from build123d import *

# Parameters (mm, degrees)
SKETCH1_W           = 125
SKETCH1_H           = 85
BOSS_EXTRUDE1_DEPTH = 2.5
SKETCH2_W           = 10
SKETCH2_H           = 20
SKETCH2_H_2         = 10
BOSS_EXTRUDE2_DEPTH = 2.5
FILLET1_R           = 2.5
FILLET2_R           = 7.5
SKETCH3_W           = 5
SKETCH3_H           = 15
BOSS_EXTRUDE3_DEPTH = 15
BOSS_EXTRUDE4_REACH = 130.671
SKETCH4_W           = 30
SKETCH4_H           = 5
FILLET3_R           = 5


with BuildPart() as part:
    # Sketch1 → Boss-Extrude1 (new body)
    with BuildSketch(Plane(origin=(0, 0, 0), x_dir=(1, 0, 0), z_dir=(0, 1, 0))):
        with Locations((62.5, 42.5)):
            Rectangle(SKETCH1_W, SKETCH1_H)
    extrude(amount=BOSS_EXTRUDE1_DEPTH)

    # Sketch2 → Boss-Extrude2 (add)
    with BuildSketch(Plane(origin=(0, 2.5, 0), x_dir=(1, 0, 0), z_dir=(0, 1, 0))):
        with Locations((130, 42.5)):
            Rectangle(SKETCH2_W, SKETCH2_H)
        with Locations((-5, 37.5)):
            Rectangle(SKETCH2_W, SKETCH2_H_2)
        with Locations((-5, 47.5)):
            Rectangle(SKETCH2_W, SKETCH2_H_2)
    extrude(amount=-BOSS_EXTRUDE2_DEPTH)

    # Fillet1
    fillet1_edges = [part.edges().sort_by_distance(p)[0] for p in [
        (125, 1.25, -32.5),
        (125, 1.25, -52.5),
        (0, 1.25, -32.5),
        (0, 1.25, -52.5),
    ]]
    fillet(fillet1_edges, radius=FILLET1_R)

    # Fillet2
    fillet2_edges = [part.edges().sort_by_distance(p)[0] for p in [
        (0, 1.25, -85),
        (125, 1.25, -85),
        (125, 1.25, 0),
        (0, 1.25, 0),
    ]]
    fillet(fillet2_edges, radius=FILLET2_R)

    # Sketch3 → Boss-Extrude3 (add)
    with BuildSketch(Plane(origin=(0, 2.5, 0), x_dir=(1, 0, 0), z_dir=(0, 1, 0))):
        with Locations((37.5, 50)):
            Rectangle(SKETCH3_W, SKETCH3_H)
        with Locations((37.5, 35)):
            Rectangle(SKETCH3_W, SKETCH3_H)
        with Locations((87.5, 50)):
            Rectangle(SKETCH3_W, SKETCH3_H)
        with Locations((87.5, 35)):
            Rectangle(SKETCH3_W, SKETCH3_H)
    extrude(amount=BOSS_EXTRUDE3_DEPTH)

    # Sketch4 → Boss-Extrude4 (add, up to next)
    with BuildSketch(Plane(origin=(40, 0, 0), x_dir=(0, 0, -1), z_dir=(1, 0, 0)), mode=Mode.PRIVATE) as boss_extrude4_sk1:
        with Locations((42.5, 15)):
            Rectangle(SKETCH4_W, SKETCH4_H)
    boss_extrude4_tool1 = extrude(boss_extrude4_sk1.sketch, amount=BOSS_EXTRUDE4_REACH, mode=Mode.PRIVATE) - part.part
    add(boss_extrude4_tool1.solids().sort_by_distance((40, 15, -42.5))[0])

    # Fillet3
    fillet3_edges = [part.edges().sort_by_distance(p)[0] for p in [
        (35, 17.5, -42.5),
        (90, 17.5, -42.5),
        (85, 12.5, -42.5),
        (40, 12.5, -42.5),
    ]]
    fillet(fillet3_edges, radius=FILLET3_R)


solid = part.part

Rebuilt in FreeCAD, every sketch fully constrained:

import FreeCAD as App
import Part
import Sketcher

V = App.Vector
Q = App.Units.Quantity


def edges_at(feature, points):
    """Names of the edges that pass closest to the given points."""
    edges = feature.Shape.Edges
    near = lambda p: min(range(len(edges)), key=lambda i: edges[i].distToShape(Part.Vertex(*p))[0])
    return sorted({f"Edge{near(p) + 1}" for p in points})


def add_polygon(sketch, points):
    """Adds a closed chain of lines whose ends are joined by coincident constraints."""
    first, n = sketch.GeometryCount, len(points)
    for a, b in zip(points, points[1:] + points[:1]):
        sketch.addGeometry(Part.LineSegment(App.Vector(*a, 0), App.Vector(*b, 0)), False)
    for i in range(n):
        sketch.addConstraint(Sketcher.Constraint("Coincident", first + i, 2, first + (i + 1) % n, 1))

doc = App.newDocument("Part")
body = doc.addObject("PartDesign::Body", "Body")

# Sketch on XZ plane
sketch1 = doc.addObject("Sketcher::SketchObject", "Sketch")
body.addObject(sketch1)
sketch1.AttachmentSupport = (doc.XZ_Plane, [""])
sketch1.MapMode = "FlatFace"
add_polygon(sketch1, [(0, -85), (0, 0), (125, 0), (125, -85)])  # lines 0-3
sketch1.addConstraint(Sketcher.Constraint("Vertical", 0))
sketch1.addConstraint(Sketcher.Constraint("Horizontal", 1))
sketch1.addConstraint(Sketcher.Constraint("Vertical", 2))
sketch1.addConstraint(Sketcher.Constraint("Horizontal", 3))
sketch1.addConstraint(Sketcher.Constraint("Coincident", 0, 2, -1, 1))
sketch1.addConstraint(Sketcher.Constraint("DistanceX", 1, 1, 1, 2, Q("125 mm")))
sketch1.addConstraint(Sketcher.Constraint("DistanceY", 0, 1, 0, 2, Q("85 mm")))
pad1 = doc.addObject("PartDesign::Pad", "Pad")
body.addObject(pad1)
pad1.Profile = sketch1
pad1.Length = 2.5
pad1.Reversed = True

# Sketch on XZ plane
sketch2 = doc.addObject("Sketcher::SketchObject", "Sketch001")
body.addObject(sketch2)
sketch2.AttachmentSupport = (doc.XZ_Plane, [""])
sketch2.MapMode = "FlatFace"
sketch2.AttachmentOffset = App.Placement(V(0, 0, -2.5), App.Rotation())
add_polygon(sketch2, [(125, -52), (125, -32), (135, -32), (135, -52)])  # lines 0-3
add_polygon(sketch2, [(-10, -32), (0, -32), (0, -52), (-10, -52)])  # lines 4-7
sketch2.addConstraint(Sketcher.Constraint("Vertical", 0))
sketch2.addConstraint(Sketcher.Constraint("Horizontal", 1))
sketch2.addConstraint(Sketcher.Constraint("Vertical", 2))
sketch2.addConstraint(Sketcher.Constraint("Horizontal", 3))
sketch2.addConstraint(Sketcher.Constraint("Horizontal", 4))
sketch2.addConstraint(Sketcher.Constraint("Vertical", 5))
sketch2.addConstraint(Sketcher.Constraint("Horizontal", 6))
sketch2.addConstraint(Sketcher.Constraint("Vertical", 7))
sketch2.addConstraint(Sketcher.Constraint("PointOnObject", 4, 2, -2))
sketch2.addConstraint(Sketcher.Constraint("Horizontal", 1, 2, 4, 2))
sketch2.addConstraint(Sketcher.Constraint("Horizontal", 3, 2, 5, 2))
sketch2.addConstraint(Sketcher.Constraint("Equal", 3, 4))
sketch2.addConstraint(Sketcher.Constraint("DistanceX", 1, 1, 1, 2, Q("10 mm")))
sketch2.addConstraint(Sketcher.Constraint("DistanceY", 0, 1, 0, 2, Q("20 mm")))
sketch2.addConstraint(Sketcher.Constraint("DistanceX", -1, 1, 0, 2, Q("125 mm")))
sketch2.addConstraint(Sketcher.Constraint("DistanceY", 0, 2, -1, 1, Q("32.5 mm")))
pad2 = doc.addObject("PartDesign::Pad", "Pad001")
body.addObject(pad2)
pad2.Profile = sketch2
pad2.Length = 2.5
doc.recompute()

fillet = doc.addObject("PartDesign::Fillet", "Fillet")
body.addObject(fillet)
fillet.Base = (pad2, edges_at(pad2, [
    (125, 1.25, -32.5),
    (125, 1.25, -52.5),
    (0, 1.25, -32.5),
    (0, 1.25, -52.5),
]))
fillet.Radius = 2.5
doc.recompute()

fillet2 = doc.addObject("PartDesign::Fillet", "Fillet001")
body.addObject(fillet2)
fillet2.Base = (fillet, edges_at(fillet, [
    (0, 1.25, -85),
    (125, 1.25, -85),
    (125, 1.25, 0),
    (0, 1.25, 0),
]))
fillet2.Radius = 7.5

# Sketch on XZ plane
sketch3 = doc.addObject("Sketcher::SketchObject", "Sketch002")
body.addObject(sketch3)
sketch3.AttachmentSupport = (doc.XZ_Plane, [""])
sketch3.MapMode = "FlatFace"
sketch3.AttachmentOffset = App.Placement(V(0, 0, -2.5), App.Rotation())
add_polygon(sketch3, [(35, -58), (35, -28), (40, -28), (40, -58)])  # lines 0-3
add_polygon(sketch3, [(85, -58), (85, -28), (90, -28), (90, -58)])  # lines 4-7
sketch3.addConstraint(Sketcher.Constraint("Vertical", 0))
sketch3.addConstraint(Sketcher.Constraint("Horizontal", 1))
sketch3.addConstraint(Sketcher.Constraint("Vertical", 2))
sketch3.addConstraint(Sketcher.Constraint("Horizontal", 3))
sketch3.addConstraint(Sketcher.Constraint("Vertical", 4))
sketch3.addConstraint(Sketcher.Constraint("Horizontal", 5))
sketch3.addConstraint(Sketcher.Constraint("Vertical", 6))
sketch3.addConstraint(Sketcher.Constraint("Horizontal", 7))
sketch3.addConstraint(Sketcher.Constraint("Horizontal", 1, 2, 4, 2))
sketch3.addConstraint(Sketcher.Constraint("Horizontal", 3, 2, 6, 2))
sketch3.addConstraint(Sketcher.Constraint("Equal", 3, 5))
sketch3.addConstraint(Sketcher.Constraint("DistanceX", 1, 1, 1, 2, Q("5 mm")))
sketch3.addConstraint(Sketcher.Constraint("DistanceY", 0, 1, 0, 2, Q("30 mm")))
sketch3.addConstraint(Sketcher.Constraint("DistanceX", -1, 1, 0, 2, Q("35 mm")))
sketch3.addConstraint(Sketcher.Constraint("DistanceX", -1, 1, 4, 2, Q("85 mm")))
sketch3.addConstraint(Sketcher.Constraint("DistanceY", 0, 2, -1, 1, Q("27.5 mm")))
pad3 = doc.addObject("PartDesign::Pad", "Pad002")
body.addObject(pad3)
pad3.Profile = sketch3
pad3.Length = 15
pad3.Reversed = True

# Sketch on YZ plane
sketch4 = doc.addObject("Sketcher::SketchObject", "Sketch003")
body.addObject(sketch4)
sketch4.AttachmentSupport = (doc.YZ_Plane, [""])
sketch4.MapMode = "FlatFace"
sketch4.AttachmentOffset = App.Placement(V(0, 0, 40), App.Rotation())
add_polygon(sketch4, [(18, -28), (12, -28), (12, -58), (18, -58)])  # lines 0-3
sketch4.addConstraint(Sketcher.Constraint("Horizontal", 0))
sketch4.addConstraint(Sketcher.Constraint("Vertical", 1))
sketch4.addConstraint(Sketcher.Constraint("Horizontal", 2))
sketch4.addConstraint(Sketcher.Constraint("Vertical", 3))
sketch4.addConstraint(Sketcher.Constraint("DistanceX", 0, 2, 0, 1, Q("5 mm")))
sketch4.addConstraint(Sketcher.Constraint("DistanceY", 1, 2, 1, 1, Q("30 mm")))
sketch4.addConstraint(Sketcher.Constraint("DistanceX", -1, 1, 0, 2, Q("12.5 mm")))
sketch4.addConstraint(Sketcher.Constraint("DistanceY", 0, 2, -1, 1, Q("27.5 mm")))
pad4 = doc.addObject("PartDesign::Pad", "Pad003")
body.addObject(pad4)
pad4.Profile = sketch4
pad4.Type = "UpToFirst"
doc.recompute()

fillet3 = doc.addObject("PartDesign::Fillet", "Fillet002")
body.addObject(fillet3)
fillet3.Base = (pad4, edges_at(pad4, [
    (35, 17.5, -42.5),
    (90, 17.5, -42.5),
    (85, 12.5, -42.5),
    (40, 12.5, -42.5),
]))
fillet3.Radius = 5

doc.recompute()
